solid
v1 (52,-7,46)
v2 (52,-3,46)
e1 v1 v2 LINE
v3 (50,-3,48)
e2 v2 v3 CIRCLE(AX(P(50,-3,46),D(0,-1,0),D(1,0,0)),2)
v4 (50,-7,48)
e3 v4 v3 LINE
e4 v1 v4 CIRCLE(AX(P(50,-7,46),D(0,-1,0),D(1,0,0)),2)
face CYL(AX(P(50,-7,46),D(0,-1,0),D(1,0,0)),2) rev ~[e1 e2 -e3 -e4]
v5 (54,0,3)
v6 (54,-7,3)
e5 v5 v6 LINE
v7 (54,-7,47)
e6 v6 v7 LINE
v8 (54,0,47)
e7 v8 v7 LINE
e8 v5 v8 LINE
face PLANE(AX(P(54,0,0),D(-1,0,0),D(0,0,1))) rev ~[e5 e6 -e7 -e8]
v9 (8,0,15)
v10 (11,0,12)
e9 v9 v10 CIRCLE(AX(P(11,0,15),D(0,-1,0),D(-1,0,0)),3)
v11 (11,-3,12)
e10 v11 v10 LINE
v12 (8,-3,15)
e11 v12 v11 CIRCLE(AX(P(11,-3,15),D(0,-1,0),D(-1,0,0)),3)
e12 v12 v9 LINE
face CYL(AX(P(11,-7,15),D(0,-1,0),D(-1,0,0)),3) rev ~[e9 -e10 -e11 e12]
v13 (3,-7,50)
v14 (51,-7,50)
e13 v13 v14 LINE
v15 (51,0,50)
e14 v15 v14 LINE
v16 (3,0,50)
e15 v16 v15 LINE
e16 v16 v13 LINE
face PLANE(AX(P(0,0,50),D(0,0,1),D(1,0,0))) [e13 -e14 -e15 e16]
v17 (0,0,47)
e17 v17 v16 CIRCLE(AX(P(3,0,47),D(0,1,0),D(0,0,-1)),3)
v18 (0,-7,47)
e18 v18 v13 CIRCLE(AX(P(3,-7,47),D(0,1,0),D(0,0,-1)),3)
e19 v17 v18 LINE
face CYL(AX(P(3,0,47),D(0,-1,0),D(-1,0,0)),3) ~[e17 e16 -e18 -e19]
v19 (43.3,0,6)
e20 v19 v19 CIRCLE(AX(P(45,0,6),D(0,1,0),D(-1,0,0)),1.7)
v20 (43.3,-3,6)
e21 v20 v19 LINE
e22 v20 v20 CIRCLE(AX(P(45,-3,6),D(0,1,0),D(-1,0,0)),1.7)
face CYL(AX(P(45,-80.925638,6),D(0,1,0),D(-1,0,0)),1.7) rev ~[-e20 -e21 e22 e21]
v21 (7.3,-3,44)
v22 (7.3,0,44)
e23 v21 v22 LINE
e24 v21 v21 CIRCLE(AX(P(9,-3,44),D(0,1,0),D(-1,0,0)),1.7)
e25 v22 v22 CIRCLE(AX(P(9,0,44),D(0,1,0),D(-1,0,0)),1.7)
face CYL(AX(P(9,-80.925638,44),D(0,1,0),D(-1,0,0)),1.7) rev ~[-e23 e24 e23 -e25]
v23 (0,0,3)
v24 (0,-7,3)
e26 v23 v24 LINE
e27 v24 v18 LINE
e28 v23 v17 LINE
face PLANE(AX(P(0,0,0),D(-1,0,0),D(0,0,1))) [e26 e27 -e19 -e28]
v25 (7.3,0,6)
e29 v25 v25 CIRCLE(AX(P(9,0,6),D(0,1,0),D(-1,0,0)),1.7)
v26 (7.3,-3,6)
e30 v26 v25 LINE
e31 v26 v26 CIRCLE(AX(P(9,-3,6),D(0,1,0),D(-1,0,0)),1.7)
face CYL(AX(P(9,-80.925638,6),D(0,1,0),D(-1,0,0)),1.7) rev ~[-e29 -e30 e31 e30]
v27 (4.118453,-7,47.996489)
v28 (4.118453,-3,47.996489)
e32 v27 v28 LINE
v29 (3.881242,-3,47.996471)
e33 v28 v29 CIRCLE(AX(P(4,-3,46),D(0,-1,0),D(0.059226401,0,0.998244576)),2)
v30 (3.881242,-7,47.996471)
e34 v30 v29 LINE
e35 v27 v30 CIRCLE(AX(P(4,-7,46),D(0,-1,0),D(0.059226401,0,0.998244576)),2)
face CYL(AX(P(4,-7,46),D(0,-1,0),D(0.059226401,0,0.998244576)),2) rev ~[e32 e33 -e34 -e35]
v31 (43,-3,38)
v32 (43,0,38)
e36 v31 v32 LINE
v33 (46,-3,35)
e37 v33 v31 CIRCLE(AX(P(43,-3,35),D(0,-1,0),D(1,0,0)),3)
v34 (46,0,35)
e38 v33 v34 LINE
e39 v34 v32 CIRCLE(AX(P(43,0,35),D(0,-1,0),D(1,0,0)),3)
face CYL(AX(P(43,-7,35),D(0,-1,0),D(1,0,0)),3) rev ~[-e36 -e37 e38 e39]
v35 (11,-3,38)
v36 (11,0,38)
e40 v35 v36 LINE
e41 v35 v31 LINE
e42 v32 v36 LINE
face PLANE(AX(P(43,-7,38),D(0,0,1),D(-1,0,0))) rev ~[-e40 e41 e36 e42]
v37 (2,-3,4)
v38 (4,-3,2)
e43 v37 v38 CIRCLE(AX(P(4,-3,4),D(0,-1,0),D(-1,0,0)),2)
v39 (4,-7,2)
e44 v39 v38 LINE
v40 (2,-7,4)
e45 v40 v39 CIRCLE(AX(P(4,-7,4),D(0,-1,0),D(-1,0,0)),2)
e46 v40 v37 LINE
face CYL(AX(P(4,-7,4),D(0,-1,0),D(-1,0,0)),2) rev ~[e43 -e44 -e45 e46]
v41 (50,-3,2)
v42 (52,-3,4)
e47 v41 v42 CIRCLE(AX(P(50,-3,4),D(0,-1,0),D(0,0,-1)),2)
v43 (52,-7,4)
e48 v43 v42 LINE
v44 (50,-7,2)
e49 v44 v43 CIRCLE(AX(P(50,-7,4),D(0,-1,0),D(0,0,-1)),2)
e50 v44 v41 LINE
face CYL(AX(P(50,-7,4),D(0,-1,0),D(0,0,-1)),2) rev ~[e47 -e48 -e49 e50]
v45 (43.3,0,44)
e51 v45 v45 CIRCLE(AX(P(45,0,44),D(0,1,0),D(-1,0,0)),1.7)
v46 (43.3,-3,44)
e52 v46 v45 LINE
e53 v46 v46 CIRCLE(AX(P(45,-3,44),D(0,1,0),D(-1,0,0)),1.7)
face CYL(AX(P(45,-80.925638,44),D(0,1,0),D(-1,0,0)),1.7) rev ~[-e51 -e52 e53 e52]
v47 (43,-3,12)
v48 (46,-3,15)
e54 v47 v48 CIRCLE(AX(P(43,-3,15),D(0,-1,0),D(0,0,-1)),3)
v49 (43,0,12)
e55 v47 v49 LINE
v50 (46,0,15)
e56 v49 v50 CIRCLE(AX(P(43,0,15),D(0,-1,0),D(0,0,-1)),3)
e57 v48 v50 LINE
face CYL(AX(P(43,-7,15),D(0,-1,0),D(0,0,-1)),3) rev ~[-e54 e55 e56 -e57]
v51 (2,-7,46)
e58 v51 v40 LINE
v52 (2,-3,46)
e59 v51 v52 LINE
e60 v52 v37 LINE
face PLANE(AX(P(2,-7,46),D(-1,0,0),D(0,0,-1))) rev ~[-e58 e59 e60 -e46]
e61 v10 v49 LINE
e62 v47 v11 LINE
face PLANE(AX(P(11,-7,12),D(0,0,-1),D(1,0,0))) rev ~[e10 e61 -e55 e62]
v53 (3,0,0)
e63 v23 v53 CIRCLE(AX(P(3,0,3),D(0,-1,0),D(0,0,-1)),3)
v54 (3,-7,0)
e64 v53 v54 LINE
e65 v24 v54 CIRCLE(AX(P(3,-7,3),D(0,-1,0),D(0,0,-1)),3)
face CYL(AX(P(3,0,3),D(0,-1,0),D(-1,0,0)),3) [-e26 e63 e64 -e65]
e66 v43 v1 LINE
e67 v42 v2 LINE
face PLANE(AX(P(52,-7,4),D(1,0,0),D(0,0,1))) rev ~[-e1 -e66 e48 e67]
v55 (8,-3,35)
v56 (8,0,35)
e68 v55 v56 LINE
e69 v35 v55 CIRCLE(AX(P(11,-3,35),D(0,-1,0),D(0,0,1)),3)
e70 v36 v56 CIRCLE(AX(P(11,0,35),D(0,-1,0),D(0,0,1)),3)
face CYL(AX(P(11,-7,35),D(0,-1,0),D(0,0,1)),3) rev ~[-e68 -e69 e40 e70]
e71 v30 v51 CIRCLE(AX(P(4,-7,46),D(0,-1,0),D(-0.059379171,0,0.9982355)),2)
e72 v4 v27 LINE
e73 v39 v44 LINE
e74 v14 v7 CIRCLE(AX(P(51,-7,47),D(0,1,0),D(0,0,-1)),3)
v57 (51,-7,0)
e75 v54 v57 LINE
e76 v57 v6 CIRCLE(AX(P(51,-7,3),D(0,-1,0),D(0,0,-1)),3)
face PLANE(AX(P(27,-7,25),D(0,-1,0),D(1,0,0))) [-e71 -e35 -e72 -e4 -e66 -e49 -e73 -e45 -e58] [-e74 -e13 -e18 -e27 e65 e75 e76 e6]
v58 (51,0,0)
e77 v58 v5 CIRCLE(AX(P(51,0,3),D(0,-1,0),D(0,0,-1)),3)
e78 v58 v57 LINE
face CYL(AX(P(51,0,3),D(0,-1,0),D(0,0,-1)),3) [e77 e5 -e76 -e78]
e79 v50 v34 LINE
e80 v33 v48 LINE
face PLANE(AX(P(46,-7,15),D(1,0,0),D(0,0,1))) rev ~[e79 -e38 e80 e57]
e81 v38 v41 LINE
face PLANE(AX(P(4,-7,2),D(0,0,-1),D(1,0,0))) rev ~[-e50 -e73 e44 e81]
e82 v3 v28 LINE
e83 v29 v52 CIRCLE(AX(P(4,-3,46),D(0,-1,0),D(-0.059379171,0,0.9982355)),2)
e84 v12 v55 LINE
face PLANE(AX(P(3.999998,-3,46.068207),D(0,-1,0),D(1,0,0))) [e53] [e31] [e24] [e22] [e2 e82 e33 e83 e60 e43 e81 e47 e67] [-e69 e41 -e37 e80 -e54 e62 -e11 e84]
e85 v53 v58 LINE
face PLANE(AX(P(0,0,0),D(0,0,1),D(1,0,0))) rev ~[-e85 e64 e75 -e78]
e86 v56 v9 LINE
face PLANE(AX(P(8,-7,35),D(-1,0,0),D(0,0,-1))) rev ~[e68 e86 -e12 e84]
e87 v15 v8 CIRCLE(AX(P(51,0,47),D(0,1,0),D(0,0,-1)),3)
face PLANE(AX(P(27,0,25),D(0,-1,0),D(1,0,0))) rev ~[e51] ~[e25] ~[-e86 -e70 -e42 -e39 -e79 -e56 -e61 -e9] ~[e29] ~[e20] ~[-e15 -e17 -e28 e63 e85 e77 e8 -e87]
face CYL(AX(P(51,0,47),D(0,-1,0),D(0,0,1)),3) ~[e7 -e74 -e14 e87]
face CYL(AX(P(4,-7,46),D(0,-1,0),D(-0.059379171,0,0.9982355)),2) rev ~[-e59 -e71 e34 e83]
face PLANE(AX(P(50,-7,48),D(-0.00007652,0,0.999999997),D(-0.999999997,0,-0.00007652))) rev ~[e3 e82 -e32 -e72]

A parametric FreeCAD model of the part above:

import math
import FreeCAD as App
import Part
import Sketcher
from FreeCAD import Vector


def edges_at(feature, points):
    """Names of the edges that pass closest to the given points."""
    edges = feature.Shape.Edges
    near = lambda p: min(range(len(edges)), key=lambda i: edges[i].distToShape(Part.Vertex(*p))[0])
    return sorted({f"Edge{near(p) + 1}" for p in points})


def add_polygon(sketch, points):
    """Adds a closed chain of lines whose ends are joined by coincident constraints."""
    first, n = sketch.GeometryCount, len(points)
    for a, b in zip(points, points[1:] + points[:1]):
        sketch.addGeometry(Part.LineSegment(App.Vector(*a, 0), App.Vector(*b, 0)), False)
    for i in range(n):
        sketch.addConstraint(Sketcher.Constraint("Coincident", first + i, 2, first + (i + 1) % n, 1))

doc = App.newDocument("Part")
body = doc.addObject("PartDesign::Body", "Body")

sketch1 = doc.addObject("Sketcher::SketchObject", "Sketch")
body.addObject(sketch1)
sketch1.AttachmentSupport = (doc.XZ_Plane, [""])
sketch1.MapMode = "FlatFace"
add_polygon(sketch1, [(0, 50), (0, 0), (54, 0), (54, 50)])
sketch1.addConstraint([
    Sketcher.Constraint("Vertical", 0),
    Sketcher.Constraint("Horizontal", 1),
    Sketcher.Constraint("Vertical", 2),
    Sketcher.Constraint("Horizontal", 3),
    Sketcher.Constraint("Coincident", 0, 2, -1, 1),
    Sketcher.Constraint("DistanceX", 1, 1, 1, 2, 54.0),
    Sketcher.Constraint("DistanceY", 0, 2, 0, 1, 50.0),
])
pad1 = doc.addObject("PartDesign::Pad", "Pad")
body.addObject(pad1)
pad1.Profile = sketch1
pad1.Length = 7

sketch2 = doc.addObject("Sketcher::SketchObject", "Sketch001")
body.addObject(sketch2)
sketch2.AttachmentSupport = (doc.XZ_Plane, [""])
sketch2.MapMode = "FlatFace"
sketch2.AttachmentOffset = App.Placement(Vector(0, 0, 7), App.Rotation())
sketch2.addGeometry([
    Part.Circle(Vector(9, 44, 0), Vector(0, 0, 1), 1.7),
    Part.Circle(Vector(45, 44, 0), Vector(0, 0, 1), 1.7),
    Part.Circle(Vector(9, 6, 0), Vector(0, 0, 1), 1.7),
    Part.Circle(Vector(45, 6, 0), Vector(0, 0, 1), 1.7),
], False)
sketch2.addConstraint([
    Sketcher.Constraint("Equal", 0, 1),
    Sketcher.Constraint("Equal", 1, 2),
    Sketcher.Constraint("Equal", 2, 3),
    Sketcher.Constraint("Horizontal", 0, 3, 1, 3),
    Sketcher.Constraint("Horizontal", 2, 3, 3, 3),
    Sketcher.Constraint("Vertical", 0, 3, 2, 3),
    Sketcher.Constraint("Vertical", 1, 3, 3, 3),
    Sketcher.Constraint("Diameter", 0, 3.4),
    Sketcher.Constraint("DistanceX", -1, 1, 0, 3, 9.0),
    Sketcher.Constraint("DistanceY", -1, 1, 0, 3, 44.0),
    Sketcher.Constraint("DistanceX", -1, 1, 1, 3, 45.0),
    Sketcher.Constraint("DistanceY", -1, 1, 2, 3, 6.0),
])
doc.recompute()
hole = doc.addObject("PartDesign::Hole", "Hole")
body.addObject(hole)
hole.Profile = sketch2
hole.ThreadType = "None"
hole.Diameter = 3.4
hole.DepthType = "ThroughAll"

sketch3 = doc.addObject("Sketcher::SketchObject", "Sketch002")
body.addObject(sketch3)
sketch3.AttachmentSupport = (doc.XZ_Plane, [""])
sketch3.MapMode = "FlatFace"
sketch3.AttachmentOffset = App.Placement(Vector(0, 0, 7), App.Rotation())
sketch3.addGeometry([
    Part.LineSegment(Vector(43, 38, 0), Vector(11, 38, 0)),
    Part.ArcOfCircle(Part.Circle(Vector(11, 35, 0), Vector(0, 0, 1), 3), math.radians(90), math.radians(180)),
    Part.LineSegment(Vector(8, 35, 0), Vector(8, 15, 0)),
    Part.ArcOfCircle(Part.Circle(Vector(11, 15, 0), Vector(0, 0, 1), 3), math.radians(180), math.radians(270)),
    Part.LineSegment(Vector(11, 12, 0), Vector(43, 12, 0)),
    Part.ArcOfCircle(Part.Circle(Vector(43, 15, 0), Vector(0, 0, 1), 3), math.radians(-90), math.radians(0)),
    Part.LineSegment(Vector(46, 15, 0), Vector(46, 35, 0)),
    Part.ArcOfCircle(Part.Circle(Vector(43, 35, 0), Vector(0, 0, 1), 3), math.radians(0), math.radians(90)),
], False)
sketch3.addConstraint([
    Sketcher.Constraint("Tangent", 0, 2, 1, 1),
    Sketcher.Constraint("Tangent", 1, 2, 2, 1),
    Sketcher.Constraint("Tangent", 2, 2, 3, 1),
    Sketcher.Constraint("Tangent", 3, 2, 4, 1),
    Sketcher.Constraint("Tangent", 4, 2, 5, 1),
    Sketcher.Constraint("Tangent", 5, 2, 6, 1),
    Sketcher.Constraint("Tangent", 6, 2, 7, 1),
    Sketcher.Constraint("Tangent", 7, 2, 0, 1),
    Sketcher.Constraint("Horizontal", 0),
    Sketcher.Constraint("Vertical", 2),
    Sketcher.Constraint("Horizontal", 4),
    Sketcher.Constraint("Vertical", 6),
    Sketcher.Constraint("Equal", 1, 3),
    Sketcher.Constraint("Equal", 3, 5),
    Sketcher.Constraint("Equal", 5, 7),
    Sketcher.Constraint("Radius", 1, 3.0),
    Sketcher.Constraint("DistanceX", 0, 2, 0, 1, 32.0),
    Sketcher.Constraint("DistanceY", 2, 2, 2, 1, 20.0),
    Sketcher.Constraint("DistanceX", -1, 1, 1, 3, 11.0),
    Sketcher.Constraint("DistanceY", -1, 1, 1, 3, 35.0),
])
pocket1 = doc.addObject("PartDesign::Pocket", "Pocket")
body.addObject(pocket1)
pocket1.Profile = sketch3
pocket1.Length = 25

sketch4 = doc.addObject("Sketcher::SketchObject", "Sketch003")
body.addObject(sketch4)
sketch4.AttachmentSupport = (doc.XZ_Plane, [""])
sketch4.MapMode = "FlatFace"
sketch4.AttachmentOffset = App.Placement(Vector(0, 0, 7), App.Rotation())
sketch4.addGeometry([
    Part.ArcOfCircle(Part.Circle(Vector(4, 46, 0), Vector(0, 0, 1), 2), math.radians(93), math.radians(180)),
    Part.LineSegment(Vector(2, 46, 0), Vector(2, 4, 0)),
    Part.ArcOfCircle(Part.Circle(Vector(4, 4, 0), Vector(0, 0, 1), 2), math.radians(180), math.radians(270)),
    Part.LineSegment(Vector(4, 2, 0), Vector(50, 2, 0)),
    Part.ArcOfCircle(Part.Circle(Vector(50, 4, 0), Vector(0, 0, 1), 2), math.radians(-90), math.radians(0)),
    Part.LineSegment(Vector(52, 4, 0), Vector(52, 46, 0)),
    Part.ArcOfCircle(Part.Circle(Vector(50, 46, 0), Vector(0, 0, 1), 2), math.radians(0), math.radians(90)),
    Part.LineSegment(Vector(50, 48, 0), Vector(4.12, 48, 0)),
    Part.ArcOfCircle(Part.Circle(Vector(4, 46, 0), Vector(0, 0, 1), 2), math.radians(86.6), math.radians(93.4)),
], False)
sketch4.addConstraint([
    Sketcher.Constraint("Tangent", 0, 2, 1, 1),
    Sketcher.Constraint("Tangent", 1, 2, 2, 1),
    Sketcher.Constraint("Tangent", 2, 2, 3, 1),
    Sketcher.Constraint("Tangent", 3, 2, 4, 1),
    Sketcher.Constraint("Tangent", 4, 2, 5, 1),
    Sketcher.Constraint("Tangent", 5, 2, 6, 1),
    Sketcher.Constraint("Coincident", 6, 2, 7, 1),
    Sketcher.Constraint("Coincident", 7, 2, 8, 1),
    Sketcher.Constraint("Tangent", 8, 2, 0, 1),
    Sketcher.Constraint("Vertical", 1),
    Sketcher.Constraint("Horizontal", 3),
    Sketcher.Constraint("Vertical", 5),
    Sketcher.Constraint("Equal", 0, 2),
    Sketcher.Constraint("Equal", 2, 4),
    Sketcher.Constraint("Equal", 4, 6),
    Sketcher.Constraint("Equal", 6, 8),
    Sketcher.Constraint("Horizontal", 0, 3, 6, 3),
    Sketcher.Constraint("Vertical", 3, 2, 6, 2),
    Sketcher.Constraint("Radius", 0, 2.0),
    Sketcher.Constraint("DistanceX", 3, 1, 3, 2, 46.0),
    Sketcher.Constraint("DistanceY", 1, 2, 1, 1, 42.0),
    Sketcher.Constraint("DistanceX", -1, 1, 0, 3, 4.0),
    Sketcher.Constraint("DistanceY", -1, 1, 0, 3, 46.0),
    Sketcher.Constraint("DistanceY", -1, 1, 7, 2, 47.996489),
    Sketcher.Constraint("DistanceX", -1, 1, 8, 2, 3.881242),
])
pocket2 = doc.addObject("PartDesign::Pocket", "Pocket001")
body.addObject(pocket2)
pocket2.Profile = sketch4
pocket2.Length = 4
doc.recompute()

fillet = doc.addObject("PartDesign::Fillet", "Fillet")
body.addObject(fillet)
fillet.Base = (pocket2, edges_at(pocket2, [
    (54, -3.5, 50),
    (54, -3.5, 0),
    (0, -3.5, 0),
    (0, -3.5, 50),
]))
fillet.Radius = 3

doc.recompute()
